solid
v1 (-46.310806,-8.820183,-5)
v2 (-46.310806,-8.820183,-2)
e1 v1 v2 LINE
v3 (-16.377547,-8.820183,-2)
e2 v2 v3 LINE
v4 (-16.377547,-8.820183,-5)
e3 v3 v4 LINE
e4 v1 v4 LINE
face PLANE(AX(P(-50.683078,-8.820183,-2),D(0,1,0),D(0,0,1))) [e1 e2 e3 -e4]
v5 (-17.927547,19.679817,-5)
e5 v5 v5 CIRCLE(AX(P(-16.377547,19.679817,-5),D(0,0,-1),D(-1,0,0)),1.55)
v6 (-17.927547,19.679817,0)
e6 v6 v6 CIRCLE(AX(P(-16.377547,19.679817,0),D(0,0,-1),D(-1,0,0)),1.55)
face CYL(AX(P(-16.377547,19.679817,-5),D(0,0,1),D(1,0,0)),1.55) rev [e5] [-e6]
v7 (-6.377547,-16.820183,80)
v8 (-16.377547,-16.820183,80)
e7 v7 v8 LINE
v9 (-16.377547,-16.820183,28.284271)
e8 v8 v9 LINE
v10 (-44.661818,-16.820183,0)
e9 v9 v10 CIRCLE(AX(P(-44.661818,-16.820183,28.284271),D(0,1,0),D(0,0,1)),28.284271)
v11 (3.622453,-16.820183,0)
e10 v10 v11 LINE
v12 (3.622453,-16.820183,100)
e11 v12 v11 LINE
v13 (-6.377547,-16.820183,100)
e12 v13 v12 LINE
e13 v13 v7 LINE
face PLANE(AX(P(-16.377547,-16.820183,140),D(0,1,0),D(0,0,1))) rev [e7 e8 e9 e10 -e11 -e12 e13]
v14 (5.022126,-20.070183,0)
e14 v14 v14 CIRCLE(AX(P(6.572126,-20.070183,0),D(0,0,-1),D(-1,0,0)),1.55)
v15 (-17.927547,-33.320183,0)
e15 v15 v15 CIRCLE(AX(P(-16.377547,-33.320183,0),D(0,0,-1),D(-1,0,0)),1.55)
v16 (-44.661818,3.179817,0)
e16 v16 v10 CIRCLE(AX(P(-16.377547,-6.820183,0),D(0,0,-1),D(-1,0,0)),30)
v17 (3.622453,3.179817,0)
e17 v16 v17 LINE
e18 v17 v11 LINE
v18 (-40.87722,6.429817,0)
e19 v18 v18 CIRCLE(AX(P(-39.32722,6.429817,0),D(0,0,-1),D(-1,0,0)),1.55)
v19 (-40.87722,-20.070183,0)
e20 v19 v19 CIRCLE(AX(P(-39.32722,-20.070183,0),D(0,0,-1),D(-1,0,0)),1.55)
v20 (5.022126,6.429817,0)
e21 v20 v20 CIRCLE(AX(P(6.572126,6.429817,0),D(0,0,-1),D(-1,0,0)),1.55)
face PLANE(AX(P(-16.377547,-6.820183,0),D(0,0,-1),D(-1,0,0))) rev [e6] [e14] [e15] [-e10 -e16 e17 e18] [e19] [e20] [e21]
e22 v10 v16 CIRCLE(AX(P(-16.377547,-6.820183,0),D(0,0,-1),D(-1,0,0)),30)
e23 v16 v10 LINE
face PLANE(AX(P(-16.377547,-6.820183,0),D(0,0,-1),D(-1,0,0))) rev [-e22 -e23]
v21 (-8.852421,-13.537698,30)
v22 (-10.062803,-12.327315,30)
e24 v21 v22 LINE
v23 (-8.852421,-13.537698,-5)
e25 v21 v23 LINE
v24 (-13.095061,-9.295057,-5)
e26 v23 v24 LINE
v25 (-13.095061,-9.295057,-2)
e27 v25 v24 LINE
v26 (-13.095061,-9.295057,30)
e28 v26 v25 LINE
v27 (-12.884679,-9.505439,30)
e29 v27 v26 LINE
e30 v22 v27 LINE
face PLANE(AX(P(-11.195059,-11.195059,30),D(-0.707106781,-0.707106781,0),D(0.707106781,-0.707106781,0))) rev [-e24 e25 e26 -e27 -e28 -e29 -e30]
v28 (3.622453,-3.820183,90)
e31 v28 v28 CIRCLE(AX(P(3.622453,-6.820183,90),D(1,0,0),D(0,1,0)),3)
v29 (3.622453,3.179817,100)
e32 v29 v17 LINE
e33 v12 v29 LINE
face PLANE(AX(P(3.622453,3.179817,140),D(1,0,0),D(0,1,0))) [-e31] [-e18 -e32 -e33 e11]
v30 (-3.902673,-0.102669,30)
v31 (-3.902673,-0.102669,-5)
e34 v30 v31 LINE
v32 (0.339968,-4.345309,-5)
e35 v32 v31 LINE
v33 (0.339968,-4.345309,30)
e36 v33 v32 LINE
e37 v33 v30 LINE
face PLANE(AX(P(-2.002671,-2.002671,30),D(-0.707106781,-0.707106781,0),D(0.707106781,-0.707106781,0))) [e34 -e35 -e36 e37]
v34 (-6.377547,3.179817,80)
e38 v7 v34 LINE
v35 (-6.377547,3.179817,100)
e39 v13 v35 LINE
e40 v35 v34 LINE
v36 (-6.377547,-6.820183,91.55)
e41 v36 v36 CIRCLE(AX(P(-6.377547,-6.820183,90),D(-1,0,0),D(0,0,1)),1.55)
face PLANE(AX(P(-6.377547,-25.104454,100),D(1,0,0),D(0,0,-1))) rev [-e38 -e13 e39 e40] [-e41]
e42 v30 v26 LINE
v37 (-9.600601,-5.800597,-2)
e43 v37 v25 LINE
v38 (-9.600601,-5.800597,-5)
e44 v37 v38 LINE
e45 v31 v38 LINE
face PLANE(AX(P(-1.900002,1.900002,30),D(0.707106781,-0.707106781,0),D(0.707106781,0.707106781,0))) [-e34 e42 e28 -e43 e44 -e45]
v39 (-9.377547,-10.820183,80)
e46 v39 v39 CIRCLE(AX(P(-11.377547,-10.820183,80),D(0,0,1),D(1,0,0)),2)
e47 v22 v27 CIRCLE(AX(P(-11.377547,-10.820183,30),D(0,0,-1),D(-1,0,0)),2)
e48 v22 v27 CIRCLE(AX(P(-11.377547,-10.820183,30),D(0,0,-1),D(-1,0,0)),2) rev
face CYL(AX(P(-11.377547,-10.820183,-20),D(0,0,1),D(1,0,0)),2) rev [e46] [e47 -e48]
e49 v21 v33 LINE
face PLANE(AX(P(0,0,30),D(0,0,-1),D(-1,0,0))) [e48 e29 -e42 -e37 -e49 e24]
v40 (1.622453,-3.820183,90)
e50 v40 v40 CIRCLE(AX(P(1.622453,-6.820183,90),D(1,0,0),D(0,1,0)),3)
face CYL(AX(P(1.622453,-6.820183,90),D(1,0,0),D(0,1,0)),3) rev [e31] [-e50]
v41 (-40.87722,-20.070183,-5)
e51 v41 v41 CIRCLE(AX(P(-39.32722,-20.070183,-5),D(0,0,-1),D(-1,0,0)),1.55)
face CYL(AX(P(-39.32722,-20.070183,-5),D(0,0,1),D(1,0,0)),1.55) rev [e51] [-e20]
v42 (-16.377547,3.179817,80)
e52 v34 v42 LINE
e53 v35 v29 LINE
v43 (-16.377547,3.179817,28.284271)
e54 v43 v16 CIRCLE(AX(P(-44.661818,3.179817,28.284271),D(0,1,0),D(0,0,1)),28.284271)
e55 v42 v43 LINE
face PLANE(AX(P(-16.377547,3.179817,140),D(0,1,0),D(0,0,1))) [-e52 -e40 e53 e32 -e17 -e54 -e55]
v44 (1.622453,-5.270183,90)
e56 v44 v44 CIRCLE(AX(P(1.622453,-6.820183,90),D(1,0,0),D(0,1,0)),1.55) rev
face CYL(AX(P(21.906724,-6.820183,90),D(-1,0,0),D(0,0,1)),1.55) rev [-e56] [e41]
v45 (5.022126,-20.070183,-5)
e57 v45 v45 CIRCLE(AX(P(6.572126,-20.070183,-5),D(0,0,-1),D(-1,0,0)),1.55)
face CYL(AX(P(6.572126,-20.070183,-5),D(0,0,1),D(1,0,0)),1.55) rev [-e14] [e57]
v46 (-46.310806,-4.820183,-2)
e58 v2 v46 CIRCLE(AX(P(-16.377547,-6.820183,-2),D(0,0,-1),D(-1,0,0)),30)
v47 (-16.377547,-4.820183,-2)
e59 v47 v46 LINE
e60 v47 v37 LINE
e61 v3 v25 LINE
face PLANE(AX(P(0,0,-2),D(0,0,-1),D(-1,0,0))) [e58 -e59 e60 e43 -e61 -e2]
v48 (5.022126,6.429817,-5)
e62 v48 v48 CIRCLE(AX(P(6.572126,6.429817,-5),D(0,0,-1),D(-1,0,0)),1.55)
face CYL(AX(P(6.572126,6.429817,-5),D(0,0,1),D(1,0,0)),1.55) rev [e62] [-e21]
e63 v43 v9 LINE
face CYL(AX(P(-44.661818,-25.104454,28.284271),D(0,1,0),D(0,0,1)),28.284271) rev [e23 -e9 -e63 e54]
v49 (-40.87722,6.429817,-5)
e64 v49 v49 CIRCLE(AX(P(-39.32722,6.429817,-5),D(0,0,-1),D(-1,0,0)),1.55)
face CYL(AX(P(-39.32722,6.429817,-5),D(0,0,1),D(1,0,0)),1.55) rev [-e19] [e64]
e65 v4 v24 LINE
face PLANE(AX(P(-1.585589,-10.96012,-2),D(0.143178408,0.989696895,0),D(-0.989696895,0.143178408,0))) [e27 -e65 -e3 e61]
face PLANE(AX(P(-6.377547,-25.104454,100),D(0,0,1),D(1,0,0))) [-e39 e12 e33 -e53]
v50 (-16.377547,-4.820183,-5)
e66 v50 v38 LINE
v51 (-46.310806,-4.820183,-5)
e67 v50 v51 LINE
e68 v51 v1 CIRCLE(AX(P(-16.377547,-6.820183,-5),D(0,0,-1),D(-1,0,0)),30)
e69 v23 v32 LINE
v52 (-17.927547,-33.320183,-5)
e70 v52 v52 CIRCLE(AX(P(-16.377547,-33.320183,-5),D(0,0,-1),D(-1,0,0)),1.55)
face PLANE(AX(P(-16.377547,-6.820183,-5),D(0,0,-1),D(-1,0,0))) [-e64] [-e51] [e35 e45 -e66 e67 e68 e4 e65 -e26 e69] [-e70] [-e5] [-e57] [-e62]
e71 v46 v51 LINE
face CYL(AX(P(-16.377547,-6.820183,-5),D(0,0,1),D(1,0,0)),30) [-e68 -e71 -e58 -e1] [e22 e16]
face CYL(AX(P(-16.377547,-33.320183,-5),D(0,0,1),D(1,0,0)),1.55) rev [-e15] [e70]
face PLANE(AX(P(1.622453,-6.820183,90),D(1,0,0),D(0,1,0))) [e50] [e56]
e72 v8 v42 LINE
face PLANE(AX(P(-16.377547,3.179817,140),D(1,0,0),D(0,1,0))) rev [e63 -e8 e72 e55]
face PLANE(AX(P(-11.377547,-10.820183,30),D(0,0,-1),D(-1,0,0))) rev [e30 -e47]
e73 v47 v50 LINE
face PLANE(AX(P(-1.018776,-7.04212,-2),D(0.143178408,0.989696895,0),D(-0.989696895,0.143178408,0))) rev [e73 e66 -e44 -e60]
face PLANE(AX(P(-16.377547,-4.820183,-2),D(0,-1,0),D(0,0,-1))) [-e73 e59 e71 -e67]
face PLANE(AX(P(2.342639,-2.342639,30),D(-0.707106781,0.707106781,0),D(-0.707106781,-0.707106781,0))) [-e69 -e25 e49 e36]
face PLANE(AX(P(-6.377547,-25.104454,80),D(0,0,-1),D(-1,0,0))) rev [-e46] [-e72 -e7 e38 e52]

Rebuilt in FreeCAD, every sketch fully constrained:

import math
import FreeCAD as App
import Part
import Sketcher
Q = App.Units.Quantity

doc = App.newDocument("Part")
body = doc.addObject("PartDesign::Body", "Body")

# Sketch on XY plane
sketch1 = doc.addObject("Sketcher::SketchObject", "Sketch")
body.addObject(sketch1)
sketch1.AttachmentSupport = (doc.XY_Plane, [""])
sketch1.MapMode = "FlatFace"
sketch1.addGeometry(Part.LineSegment(App.Vector(-16, 3, 0), App.Vector(-16, -17, 0)), False)
sketch1.addGeometry(Part.LineSegment(App.Vector(-16, -17, 0), App.Vector(4, -17, 0)), False)
sketch1.addGeometry(Part.LineSegment(App.Vector(4, -17, 0), App.Vector(4, 3, 0)), False)
sketch1.addGeometry(Part.LineSegment(App.Vector(4, 3, 0), App.Vector(-16, 3, 0)), False)
sketch1.addConstraint(Sketcher.Constraint("Coincident", 0, 2, 1, 1))
sketch1.addConstraint(Sketcher.Constraint("Coincident", 1, 2, 2, 1))
sketch1.addConstraint(Sketcher.Constraint("Coincident", 2, 2, 3, 1))
sketch1.addConstraint(Sketcher.Constraint("Coincident", 3, 2, 0, 1))
sketch1.addConstraint(Sketcher.Constraint("Vertical", 0))
sketch1.addConstraint(Sketcher.Constraint("Horizontal", 1))
sketch1.addConstraint(Sketcher.Constraint("Vertical", 2))
sketch1.addConstraint(Sketcher.Constraint("Horizontal", 3))
sketch1.addConstraint(Sketcher.Constraint("Equal", 3, 0))
sketch1.addConstraint(Sketcher.Constraint("DistanceX", 1, 1, 1, 2, 20.0))
sketch1.addConstraint(Sketcher.Constraint("DistanceX", 0, 2, -1, 1, 16.377547))
sketch1.addConstraint(Sketcher.Constraint("DistanceY", 0, 2, -1, 1, 16.820183))
pad1 = doc.addObject("PartDesign::Pad", "Pad")
body.addObject(pad1)
pad1.Profile = sketch1
pad1.Length = 140

# Sketch on XY plane
sketch2 = doc.addObject("Sketcher::SketchObject", "Sketch001")
body.addObject(sketch2)
sketch2.AttachmentSupport = (doc.XY_Plane, [""])
sketch2.MapMode = "FlatFace"
sketch2.addGeometry(Part.Circle(App.Vector(-16.4, -6.8, 0), App.Vector(0, 0, 1), 30), False)
sketch2.addGeometry(Part.Circle(App.Vector(-16.4, -33.3, 0), App.Vector(0, 0, 1), 1.6), False)
sketch2.addGeometry(Part.Circle(App.Vector(6.6, -20.1, 0), App.Vector(0, 0, 1), 1.6), False)
sketch2.addGeometry(Part.Circle(App.Vector(-39.3, -20.1, 0), App.Vector(0, 0, 1), 1.6), False)
sketch2.addGeometry(Part.Circle(App.Vector(6.6, 6.4, 0), App.Vector(0, 0, 1), 1.6), False)
sketch2.addGeometry(Part.Circle(App.Vector(-16.4, 19.7, 0), App.Vector(0, 0, 1), 1.6), False)
sketch2.addGeometry(Part.Circle(App.Vector(-39.3, 6.4, 0), App.Vector(0, 0, 1), 1.6), False)
sketch2.addConstraint(Sketcher.Constraint("Equal", 1, 2))
sketch2.addConstraint(Sketcher.Constraint("Equal", 2, 3))
sketch2.addConstraint(Sketcher.Constraint("Equal", 3, 4))
sketch2.addConstraint(Sketcher.Constraint("Equal", 4, 5))
sketch2.addConstraint(Sketcher.Constraint("Equal", 5, 6))
sketch2.addConstraint(Sketcher.Constraint("Horizontal", 2, 3, 3, 3))
sketch2.addConstraint(Sketcher.Constraint("Horizontal", 4, 3, 6, 3))
sketch2.addConstraint(Sketcher.Constraint("Vertical", 0, 3, 1, 3))
sketch2.addConstraint(Sketcher.Constraint("Vertical", 2, 3, 4, 3))
sketch2.addConstraint(Sketcher.Constraint("Vertical", 1, 3, 5, 3))
sketch2.addConstraint(Sketcher.Constraint("Vertical", 3, 3, 6, 3))
sketch2.addConstraint(Sketcher.Constraint("Diameter", 0, 60.0))
sketch2.addConstraint(Sketcher.Constraint("Diameter", 1, 3.1))
sketch2.addConstraint(Sketcher.Constraint("DistanceY", 1, 3, 5, 3, 53.0))
sketch2.addConstraint(Sketcher.Constraint("DistanceY", 1, 3, 0, 3, 26.5))
sketch2.addConstraint(Sketcher.Constraint("DistanceY", 2, 3, 4, 3, 26.5))
sketch2.addConstraint(Sketcher.Constraint("DistanceY", 2, 3, 0, 3, 13.25))
sketch2.addConstraint(Sketcher.Constraint("DistanceX", 3, 3, -1, 1, 39.32722))
sketch2.addConstraint(Sketcher.Constraint("DistanceX", 0, 3, -1, 1, 16.377547))
sketch2.addConstraint(Sketcher.Constraint("DistanceY", 0, 3, -1, 1, 6.820183))
sketch2.addConstraint(Sketcher.Constraint("DistanceX", -1, 1, 2, 3, 6.572126))
pad2 = doc.addObject("PartDesign::Pad", "Pad001")
body.addObject(pad2)
pad2.Profile = sketch2
pad2.Length = 5
pad2.Reversed = True

# Sketch on XY plane
sketch3 = doc.addObject("Sketcher::SketchObject", "Sketch002")
body.addObject(sketch3)
sketch3.AttachmentSupport = (doc.XY_Plane, [""])
sketch3.MapMode = "FlatFace"
sketch3.addGeometry(Part.LineSegment(App.Vector(-45, 3, 0), App.Vector(-45, -17, 0)), False)
sketch3.addGeometry(Part.LineSegment(App.Vector(-45, -17, 0), App.Vector(-16, -17, 0)), False)
sketch3.addGeometry(Part.LineSegment(App.Vector(-16, -17, 0), App.Vector(-16, 3, 0)), False)
sketch3.addGeometry(Part.LineSegment(App.Vector(-16, 3, 0), App.Vector(-45, 3, 0)), False)
sketch3.addConstraint(Sketcher.Constraint("Coincident", 0, 2, 1, 1))
sketch3.addConstraint(Sketcher.Constraint("Coincident", 1, 2, 2, 1))
sketch3.addConstraint(Sketcher.Constraint("Coincident", 2, 2, 3, 1))
sketch3.addConstraint(Sketcher.Constraint("Coincident", 3, 2, 0, 1))
sketch3.addConstraint(Sketcher.Constraint("Vertical", 0))
sketch3.addConstraint(Sketcher.Constraint("Horizontal", 1))
sketch3.addConstraint(Sketcher.Constraint("Vertical", 2))
sketch3.addConstraint(Sketcher.Constraint("Horizontal", 3))
sketch3.addConstraint(Sketcher.Constraint("DistanceY", 0, 2, 0, 1, 20.0))
sketch3.addConstraint(Sketcher.Constraint("DistanceX", 1, 1, 1, 2, 28.284271))
sketch3.addConstraint(Sketcher.Constraint("DistanceX", 0, 2, -1, 1, 44.661818))
sketch3.addConstraint(Sketcher.Constraint("DistanceY", 0, 2, -1, 1, 16.820183))
pad3 = doc.addObject("PartDesign::Pad", "Pad002")
body.addObject(pad3)
pad3.Profile = sketch3
pad3.Length = 28.284271

# Sketch on XZ plane
sketch4 = doc.addObject("Sketcher::SketchObject", "Sketch003")
body.addObject(sketch4)
sketch4.AttachmentSupport = (doc.XZ_Plane, [""])
sketch4.MapMode = "FlatFace"
sketch4.AttachmentOffset = App.Placement(App.Vector(0, 0, -3.179817), App.Rotation())
sketch4.addGeometry(Part.LineSegment(App.Vector(-45, 0, 0), App.Vector(-45, 28, 0)), False)
sketch4.addGeometry(Part.LineSegment(App.Vector(-45, 28, 0), App.Vector(-16, 28, 0)), False)
sketch4.addGeometry(Part.ArcOfCircle(Part.Circle(App.Vector(-45, 28, 0), App.Vector(0, 0, 1), 28), math.radians(-90), math.radians(0)), False)
sketch4.addConstraint(Sketcher.Constraint("Coincident", 0, 2, 1, 1))
sketch4.addConstraint(Sketcher.Constraint("Coincident", 1, 2, 2, 2))
sketch4.addConstraint(Sketcher.Constraint("Coincident", 2, 1, 0, 1))
sketch4.addConstraint(Sketcher.Constraint("Vertical", 0))
sketch4.addConstraint(Sketcher.Constraint("Horizontal", 1))
sketch4.addConstraint(Sketcher.Constraint("Coincident", 0, 2, 2, 3))
sketch4.addConstraint(Sketcher.Constraint("PointOnObject", 2, 1, -1))
sketch4.addConstraint(Sketcher.Constraint("Radius", 2, 28.284271))
sketch4.addConstraint(Sketcher.Constraint("DistanceX", 2, 3, -1, 1, 44.661818))
pocket1 = doc.addObject("PartDesign::Pocket", "Pocket")
body.addObject(pocket1)
pocket1.Profile = sketch4
pocket1.Length = 28.284271
pocket1.Reversed = True

# Sketch on XZ plane
sketch5 = doc.addObject("Sketcher::SketchObject", "Sketch004")
body.addObject(sketch5)
sketch5.AttachmentSupport = (doc.XZ_Plane, [""])
sketch5.MapMode = "FlatFace"
sketch5.AttachmentOffset = App.Placement(App.Vector(0, 0, -3.179817), App.Rotation())
sketch5.addGeometry(Part.LineSegment(App.Vector(4, 140, 0), App.Vector(4, 100, 0)), False)
sketch5.addGeometry(Part.LineSegment(App.Vector(4, 100, 0), App.Vector(-6, 100, 0)), False)
sketch5.addGeometry(Part.LineSegment(App.Vector(-6, 100, 0), App.Vector(-6, 80, 0)), False)
sketch5.addGeometry(Part.LineSegment(App.Vector(-6, 80, 0), App.Vector(-16, 80, 0)), False)
sketch5.addGeometry(Part.LineSegment(App.Vector(-16, 80, 0), App.Vector(-16, 140, 0)), False)
sketch5.addGeometry(Part.LineSegment(App.Vector(-16, 140, 0), App.Vector(4, 140, 0)), False)
sketch5.addConstraint(Sketcher.Constraint("Coincident", 0, 2, 1, 1))
sketch5.addConstraint(Sketcher.Constraint("Coincident", 1, 2, 2, 1))
sketch5.addConstraint(Sketcher.Constraint("Coincident", 2, 2, 3, 1))
sketch5.addConstraint(Sketcher.Constraint("Coincident", 3, 2, 4, 1))
sketch5.addConstraint(Sketcher.Constraint("Coincident", 4, 2, 5, 1))
sketch5.addConstraint(Sketcher.Constraint("Coincident", 5, 2, 0, 1))
sketch5.addConstraint(Sketcher.Constraint("Vertical", 0))
sketch5.addConstraint(Sketcher.Constraint("Horizontal", 1))
sketch5.addConstraint(Sketcher.Constraint("Vertical", 2))
sketch5.addConstraint(Sketcher.Constraint("Horizontal", 3))
sketch5.addConstraint(Sketcher.Constraint("Vertical", 4))
sketch5.addConstraint(Sketcher.Constraint("Horizontal", 5))
sketch5.addConstraint(Sketcher.Constraint("Equal", 1, 3))
sketch5.addConstraint(Sketcher.Constraint("Equal", 5, 2))
sketch5.addConstraint(Sketcher.Constraint("DistanceX", 1, 2, 1, 1, 10.0))
sketch5.addConstraint(Sketcher.Constraint("DistanceY", 0, 2, 0, 1, 40.0))
sketch5.addConstraint(Sketcher.Constraint("DistanceY", -1, 1, 0, 2, 100.0))
sketch5.addConstraint(Sketcher.Constraint("DistanceX", -1, 1, 0, 2, 3.622453))
pocket2 = doc.addObject("PartDesign::Pocket", "Pocket001")
body.addObject(pocket2)
pocket2.Profile = sketch5
pocket2.Length = 28.284271
pocket2.Reversed = True

# Sketch on YZ plane
sketch6 = doc.addObject("Sketcher::SketchObject", "Sketch005")
body.addObject(sketch6)
sketch6.AttachmentSupport = (doc.YZ_Plane, [""])
sketch6.MapMode = "FlatFace"
sketch6.AttachmentOffset = App.Placement(App.Vector(0, 0, -6.377547), App.Rotation())
sketch6.addGeometry(Part.ArcOfCircle(Part.Circle(App.Vector(-6.8, 90, 0), App.Vector(0, 0, 1), 1.6), math.radians(-45), math.radians(90)), False)
sketch6.addGeometry(Part.ArcOfCircle(Part.Circle(App.Vector(-6.8, 90, 0), App.Vector(0, 0, 1), 1.6), math.radians(135), math.radians(315)), False)
sketch6.addGeometry(Part.ArcOfCircle(Part.Circle(App.Vector(-6.8, 90, 0), App.Vector(0, 0, 1), 1.6), math.radians(90), math.radians(135)), False)
sketch6.addConstraint(Sketcher.Constraint("Tangent", 0, 1, 1, 2))
sketch6.addConstraint(Sketcher.Constraint("Tangent", 1, 1, 2, 2))
sketch6.addConstraint(Sketcher.Constraint("Tangent", 2, 1, 0, 2))
sketch6.addConstraint(Sketcher.Constraint("Vertical", 1, 3, 2, 1))
sketch6.addConstraint(Sketcher.Constraint("Radius", 0, 1.55))
sketch6.addConstraint(Sketcher.Constraint("DistanceY", -1, 1, 0, 3, 90.0))
sketch6.addConstraint(Sketcher.Constraint("DistanceX", 1, 1, -1, 1, 7.916199))
sketch6.addConstraint(Sketcher.Constraint("DistanceX", 1, 1, 0, 1, 2.192031))
sketch6.addConstraint(Sketcher.Constraint("DistanceX", 0, 3, -1, 1, 6.820183))
pocket3 = doc.addObject("PartDesign::Pocket", "Pocket002")
body.addObject(pocket3)
pocket3.Profile = sketch6
pocket3.Length = 28.284271
pocket3.Reversed = True

# Sketch on YZ plane
sketch7 = doc.addObject("Sketcher::SketchObject", "Sketch006")
body.addObject(sketch7)
sketch7.AttachmentSupport = (doc.YZ_Plane, [""])
sketch7.MapMode = "FlatFace"
sketch7.AttachmentOffset = App.Placement(App.Vector(0, 0, 3.622453), App.Rotation())
sketch7.addGeometry(Part.Circle(App.Vector(-6.8, 90, 0), App.Vector(0, 0, 1), 3), False)
sketch7.addConstraint(Sketcher.Constraint("Diameter", 0, 6.0))
sketch7.addConstraint(Sketcher.Constraint("DistanceY", -1, 1, 0, 3, 90.0))
sketch7.addConstraint(Sketcher.Constraint("DistanceX", 0, 3, -1, 1, 6.820183))
pocket4 = doc.addObject("PartDesign::Pocket", "Pocket003")
body.addObject(pocket4)
pocket4.Profile = sketch7
pocket4.Length = 2

# Sketch on XY plane
sketch8 = doc.addObject("Sketcher::SketchObject", "Sketch007")
body.addObject(sketch8)
sketch8.AttachmentSupport = (doc.XY_Plane, [""])
sketch8.MapMode = "FlatFace"
sketch8.AttachmentOffset = App.Placement(App.Vector(0, 0, 80), App.Rotation())
sketch8.addGeometry(Part.Circle(App.Vector(-11.4, -10.8, 0), App.Vector(0, 0, 1), 2), False)
sketch8.addConstraint(Sketcher.Constraint("Diameter", 0, 4.0))
sketch8.addConstraint(Sketcher.Constraint("DistanceX", 0, 3, -1, 1, 11.377547))
sketch8.addConstraint(Sketcher.Constraint("DistanceY", 0, 3, -1, 1, 10.820183))
pocket5 = doc.addObject("PartDesign::Pocket", "Pocket004")
body.addObject(pocket5)
pocket5.Profile = sketch8
pocket5.Length = 100

# Sketch on XY plane
sketch9 = doc.addObject("Sketcher::SketchObject", "Sketch008")
body.addObject(sketch9)
sketch9.AttachmentSupport = (doc.XY_Plane, [""])
sketch9.MapMode = "FlatFace"
sketch9.AttachmentOffset = App.Placement(App.Vector(0, 0, -5), App.Rotation())
sketch9.addGeometry(Part.LineSegment(App.Vector(-11.4, -10.8, 0), App.Vector(-12.8, -12.3, 0)), False)
sketch9.addGeometry(Part.LineSegment(App.Vector(-12.8, -12.3, 0), App.Vector(-16.4, -8.8, 0)), False)
sketch9.addGeometry(Part.LineSegment(App.Vector(-16.4, -8.8, 0), App.Vector(-50.7, -8.8, 0)), False)
sketch9.addGeometry(Part.LineSegment(App.Vector(-50.7, -8.8, 0), App.Vector(-50.7, -4.8, 0)), False)
sketch9.addGeometry(Part.LineSegment(App.Vector(-50.7, -4.8, 0), App.Vector(-16.4, -4.8, 0)), False)
sketch9.addGeometry(Part.LineSegment(App.Vector(-16.4, -4.8, 0), App.Vector(-10.2, -9.2, 0)), False)
sketch9.addGeometry(Part.LineSegment(App.Vector(-10.2, -9.2, 0), App.Vector(-11.4, -10.8, 0)), False)
sketch9.addConstraint(Sketcher.Constraint("Coincident", 0, 2, 1, 1))
sketch9.addConstraint(Sketcher.Constraint("Coincident", 1, 2, 2, 1))
sketch9.addConstraint(Sketcher.Constraint("Coincident", 2, 2, 3, 1))
sketch9.addConstraint(Sketcher.Constraint("Coincident", 3, 2, 4, 1))
sketch9.addConstraint(Sketcher.Constraint("Coincident", 4, 2, 5, 1))
sketch9.addConstraint(Sketcher.Constraint("Coincident", 5, 2, 6, 1))
sketch9.addConstraint(Sketcher.Constraint("Coincident", 6, 2, 0, 1))
sketch9.addConstraint(Sketcher.Constraint("Horizontal", 2))
sketch9.addConstraint(Sketcher.Constraint("Vertical", 3))
sketch9.addConstraint(Sketcher.Constraint("Horizontal", 4))
sketch9.addConstraint(Sketcher.Constraint("Perpendicular", 0, 1))
sketch9.addConstraint(Sketcher.Constraint("Perpendicular", 5, 6))
sketch9.addConstraint(Sketcher.Constraint("Vertical", 1, 2, 4, 2))
sketch9.addConstraint(Sketcher.Constraint("DistanceY", 3, 1, 3, 2, 4.0))
sketch9.addConstraint(Sketcher.Constraint("DistanceX", 1, 2, 6, 2, 5.0))
sketch9.addConstraint(Sketcher.Constraint("DistanceY", 6, 2, 1, 2, 2.0))
sketch9.addConstraint(Sketcher.Constraint("DistanceX", 2, 2, 2, 1, 34.305531))
sketch9.addConstraint(Sketcher.Constraint("Distance", 5, 7.549822))
sketch9.addConstraint(Sketcher.Constraint("DistanceX", 1, 2, 0, 2, 3.620609))
sketch9.addConstraint(Sketcher.Constraint("DistanceX", 0, 2, -1, 1, 12.756938))
sketch9.addConstraint(Sketcher.Constraint("DistanceY", 0, 2, -1, 1, 12.268496))
pocket6 = doc.addObject("PartDesign::Pocket", "Pocket005")
body.addObject(pocket6)
pocket6.Profile = sketch9
pocket6.Length = 3
pocket6.Reversed = True

# Sketch on XY plane
sketch10 = doc.addObject("Sketcher::SketchObject", "Sketch009")
body.addObject(sketch10)
sketch10.AttachmentSupport = (doc.XY_Plane, [""])
sketch10.MapMode = "FlatFace"
sketch10.AttachmentOffset = App.Placement(App.Vector(0, 0, -5), App.Rotation())
sketch10.addGeometry(Part.LineSegment(App.Vector(4, 3, 0), App.Vector(4, -17, 0)), False)
sketch10.addGeometry(Part.LineSegment(App.Vector(4, -17, 0), App.Vector(-16, -17, 0)), False)
sketch10.addGeometry(Part.LineSegment(App.Vector(-16, -17, 0), App.Vector(-16, 3, 0)), False)
sketch10.addGeometry(Part.LineSegment(App.Vector(-16, 3, 0), App.Vector(4, 3, 0)), False)
sketch10.addConstraint(Sketcher.Constraint("Coincident", 0, 2, 1, 1))
sketch10.addConstraint(Sketcher.Constraint("Coincident", 1, 2, 2, 1))
sketch10.addConstraint(Sketcher.Constraint("Coincident", 2, 2, 3, 1))
sketch10.addConstraint(Sketcher.Constraint("Coincident", 3, 2, 0, 1))
sketch10.addConstraint(Sketcher.Constraint("Vertical", 0))
sketch10.addConstraint(Sketcher.Constraint("Horizontal", 1))
sketch10.addConstraint(Sketcher.Constraint("Vertical", 2))
sketch10.addConstraint(Sketcher.Constraint("Horizontal", 3))
sketch10.addConstraint(Sketcher.Constraint("Equal", 3, 0))
sketch10.addConstraint(Sketcher.Constraint("DistanceX", 1, 2, 1, 1, 20.0))
sketch10.addConstraint(Sketcher.Constraint("DistanceX", -1, 1, 0, 2, 3.622453))
sketch10.addConstraint(Sketcher.Constraint("DistanceY", 0, 2, -1, 1, 16.820183))
pocket7 = doc.addObject("PartDesign::Pocket", "Pocket006")
body.addObject(pocket7)
pocket7.Profile = sketch10
pocket7.Length = 3
pocket7.Reversed = True

# Sketch on XY plane
sketch11 = doc.addObject("Sketcher::SketchObject", "Sketch010")
body.addObject(sketch11)
sketch11.AttachmentSupport = (doc.XY_Plane, [""])
sketch11.MapMode = "FlatFace"
sketch11.AttachmentOffset = App.Placement(App.Vector(0, 0, -2), App.Rotation())
sketch11.addGeometry(Part.LineSegment(App.Vector(3.6, 3.2, 0), App.Vector(3.6, -16.8, 0)), False)
sketch11.addGeometry(Part.LineSegment(App.Vector(3.6, -16.8, 0), App.Vector(-16.4, -16.8, 0)), False)
sketch11.addGeometry(Part.LineSegment(App.Vector(-16.4, -16.8, 0), App.Vector(-16.4, 3.2, 0)), False)
sketch11.addGeometry(Part.LineSegment(App.Vector(-16.4, 3.2, 0), App.Vector(3.6, 3.2, 0)), False)
sketch11.addGeometry(Part.Circle(App.Vector(-11.4, -10.8, 0), App.Vector(0, 0, 1), 2), False)
sketch11.addConstraint(Sketcher.Constraint("Coincident", 0, 2, 1, 1))
sketch11.addConstraint(Sketcher.Constraint("Coincident", 1, 2, 2, 1))
sketch11.addConstraint(Sketcher.Constraint("Coincident", 2, 2, 3, 1))
sketch11.addConstraint(Sketcher.Constraint("Coincident", 3, 2, 0, 1))
sketch11.addConstraint(Sketcher.Constraint("Vertical", 0))
sketch11.addConstraint(Sketcher.Constraint("Horizontal", 1))
sketch11.addConstraint(Sketcher.Constraint("Vertical", 2))
sketch11.addConstraint(Sketcher.Constraint("Horizontal", 3))
sketch11.addConstraint(Sketcher.Constraint("Equal", 3, 0))
sketch11.addConstraint(Sketcher.Constraint("Diameter", 4, 4.0))
sketch11.addConstraint(Sketcher.Constraint("DistanceX", 1, 2, 1, 1, 20.0))
sketch11.addConstraint(Sketcher.Constraint("DistanceX", 4, 3, 0, 2, 15.0))
sketch11.addConstraint(Sketcher.Constraint("DistanceY", 0, 2, 4, 3, 6.0))
sketch11.addConstraint(Sketcher.Constraint("DistanceX", 4, 3, -1, 1, 11.377547))
sketch11.addConstraint(Sketcher.Constraint("DistanceY", 4, 3, -1, 1, 10.820183))
pad4 = doc.addObject("PartDesign::Pad", "Pad003")
body.addObject(pad4)
pad4.Profile = sketch11
pad4.Length = 3
pad4.Reversed = True

# Sketch on XY plane
sketch12 = doc.addObject("Sketcher::SketchObject", "Sketch011")
body.addObject(sketch12)
sketch12.AttachmentSupport = (doc.XY_Plane, [""])
sketch12.MapMode = "FlatFace"
sketch12.AttachmentOffset = App.Placement(App.Vector(0, 0, 30), App.Rotation())
sketch12.addGeometry(Part.LineSegment(App.Vector(0.34, -4.35, 0), App.Vector(-4.26, -8.94, 0)), False)
sketch12.addGeometry(Part.LineSegment(App.Vector(-4.26, -8.94, 0), App.Vector(-8.85, -13.54, 0)), False)
sketch12.addGeometry(Part.LineSegment(App.Vector(-8.85, -13.54, 0), App.Vector(-10.06, -12.33, 0)), False)
sketch12.addGeometry(Part.ArcOfCircle(Part.Circle(App.Vector(-11.38, -10.82, 0), App.Vector(0, 0, 1), 2), math.radians(139), math.radians(311)), False)
sketch12.addGeometry(Part.LineSegment(App.Vector(-12.88, -9.51, 0), App.Vector(-13.1, -9.3, 0)), False)
sketch12.addGeometry(Part.LineSegment(App.Vector(-13.1, -9.3, 0), App.Vector(-3.9, -0.1, 0)), False)
sketch12.addGeometry(Part.LineSegment(App.Vector(-3.9, -0.1, 0), App.Vector(0.34, -4.35, 0)), False)
sketch12.addConstraint(Sketcher.Constraint("Coincident", 0, 2, 1, 1))
sketch12.addConstraint(Sketcher.Constraint("Coincident", 1, 2, 2, 1))
sketch12.addConstraint(Sketcher.Constraint("Coincident", 2, 2, 3, 2))
sketch12.addConstraint(Sketcher.Constraint("Coincident", 3, 1, 4, 1))
sketch12.addConstraint(Sketcher.Constraint("Coincident", 4, 2, 5, 1))
sketch12.addConstraint(Sketcher.Constraint("Coincident", 5, 2, 6, 1))
sketch12.addConstraint(Sketcher.Constraint("Coincident", 6, 2, 0, 1))
sketch12.addConstraint(Sketcher.Constraint("Parallel", 0, 1))
sketch12.addConstraint(Sketcher.Constraint("Perpendicular", 1, 2))
sketch12.addConstraint(Sketcher.Constraint("Parallel", 2, 4))
sketch12.addConstraint(Sketcher.Constraint("Perpendicular", 4, 5))
sketch12.addConstraint(Sketcher.Constraint("Perpendicular", 5, 6))
sketch12.addConstraint(Sketcher.Constraint("Equal", 0, 1))
sketch12.addConstraint(Sketcher.Constraint("Radius", 3, 2.0))
sketch12.addConstraint(Sketcher.Constraint("Angle", 0, Q("-135 deg")))
sketch12.addConstraint(Sketcher.Constraint("Distance", 5, 13.0))
sketch12.addConstraint(Sketcher.Constraint("Distance", 6, 6.0))
sketch12.addConstraint(Sketcher.Constraint("Distance", 0, 6.5))
sketch12.addConstraint(Sketcher.Constraint("Distance", 2, 1.711739))
sketch12.addConstraint(Sketcher.Constraint("DistanceX", 1, 2, -1, 1, 8.852421))
sketch12.addConstraint(Sketcher.Constraint("DistanceX", 3, 1, -1, 1, 12.884679))
sketch12.addConstraint(Sketcher.Constraint("DistanceY", 3, 1, -1, 1, 9.505439))
pocket8 = doc.addObject("PartDesign::Pocket", "Pocket007")
body.addObject(pocket8)
pocket8.Profile = sketch12
pocket8.Length = 35

# Sketch on XY plane
sketch13 = doc.addObject("Sketcher::SketchObject", "Sketch012")
body.addObject(sketch13)
sketch13.AttachmentSupport = (doc.XY_Plane, [""])
sketch13.MapMode = "FlatFace"
sketch13.AttachmentOffset = App.Placement(App.Vector(0, 0, -5), App.Rotation())
sketch13.addGeometry(Part.LineSegment(App.Vector(-13.1, -9.3, 0), App.Vector(-16.4, -8.8, 0)), False)
sketch13.addGeometry(Part.LineSegment(App.Vector(-16.4, -8.8, 0), App.Vector(-16.4, -4.8, 0)), False)
sketch13.addGeometry(Part.LineSegment(App.Vector(-16.4, -4.8, 0), App.Vector(-9.6, -5.8, 0)), False)
sketch13.addGeometry(Part.LineSegment(App.Vector(-9.6, -5.8, 0), App.Vector(-13.1, -9.3, 0)), False)
sketch13.addConstraint(Sketcher.Constraint("Coincident", 0, 2, 1, 1))
sketch13.addConstraint(Sketcher.Constraint("Coincident", 1, 2, 2, 1))
sketch13.addConstraint(Sketcher.Constraint("Coincident", 2, 2, 3, 1))
sketch13.addConstraint(Sketcher.Constraint("Coincident", 3, 2, 0, 1))
sketch13.addConstraint(Sketcher.Constraint("Vertical", 1))
sketch13.addConstraint(Sketcher.Constraint("Parallel", 0, 2))
sketch13.addConstraint(Sketcher.Constraint("DistanceY", 1, 1, 1, 2, 4.0))
sketch13.addConstraint(Sketcher.Constraint("Angle", 3, Q("-135 deg")))
sketch13.addConstraint(Sketcher.Constraint("DistanceX", 2, 2, -1, 1, 9.600601))
sketch13.addConstraint(Sketcher.Constraint("DistanceX", 3, 2, -1, 1, 13.095061))
sketch13.addConstraint(Sketcher.Constraint("Distance", 0, 3.316657))
sketch13.addConstraint(Sketcher.Constraint("DistanceY", 0, 2, -1, 1, 8.820183))
pocket9 = doc.addObject("PartDesign::Pocket", "Pocket008")
body.addObject(pocket9)
pocket9.Profile = sketch13
pocket9.Length = 3
pocket9.Reversed = True

# Sketch on XY plane
sketch14 = doc.addObject("Sketcher::SketchObject", "Sketch013")
body.addObject(sketch14)
sketch14.AttachmentSupport = (doc.XY_Plane, [""])
sketch14.MapMode = "FlatFace"
sketch14.AttachmentOffset = App.Placement(App.Vector(0, 0, 30), App.Rotation())
sketch14.addGeometry(Part.LineSegment(App.Vector(-12.9, -9.5, 0), App.Vector(-10.1, -12.3, 0)), False)
sketch14.addGeometry(Part.ArcOfCircle(Part.Circle(App.Vector(-11.4, -10.8, 0), App.Vector(0, 0, 1), 2), math.radians(139), math.radians(311)), False)
sketch14.addConstraint(Sketcher.Constraint("Coincident", 0, 1, 1, 1))
sketch14.addConstraint(Sketcher.Constraint("Coincident", 1, 2, 0, 2))
sketch14.addConstraint(Sketcher.Constraint("Radius", 1, 2.0))
sketch14.addConstraint(Sketcher.Constraint("Angle", 0, Q("-45 deg")))
sketch14.addConstraint(Sketcher.Constraint("DistanceX", 0, 1, -1, 1, 12.884679))
sketch14.addConstraint(Sketcher.Constraint("DistanceY", 0, 1, -1, 1, 9.505439))
sketch14.addConstraint(Sketcher.Constraint("Distance", 0, 3.990736))
pad5 = doc.addObject("PartDesign::Pad", "Pad004")
body.addObject(pad5)
pad5.Profile = sketch14
pad5.Length = 35
pad5.Reversed = True

doc.recompute()
